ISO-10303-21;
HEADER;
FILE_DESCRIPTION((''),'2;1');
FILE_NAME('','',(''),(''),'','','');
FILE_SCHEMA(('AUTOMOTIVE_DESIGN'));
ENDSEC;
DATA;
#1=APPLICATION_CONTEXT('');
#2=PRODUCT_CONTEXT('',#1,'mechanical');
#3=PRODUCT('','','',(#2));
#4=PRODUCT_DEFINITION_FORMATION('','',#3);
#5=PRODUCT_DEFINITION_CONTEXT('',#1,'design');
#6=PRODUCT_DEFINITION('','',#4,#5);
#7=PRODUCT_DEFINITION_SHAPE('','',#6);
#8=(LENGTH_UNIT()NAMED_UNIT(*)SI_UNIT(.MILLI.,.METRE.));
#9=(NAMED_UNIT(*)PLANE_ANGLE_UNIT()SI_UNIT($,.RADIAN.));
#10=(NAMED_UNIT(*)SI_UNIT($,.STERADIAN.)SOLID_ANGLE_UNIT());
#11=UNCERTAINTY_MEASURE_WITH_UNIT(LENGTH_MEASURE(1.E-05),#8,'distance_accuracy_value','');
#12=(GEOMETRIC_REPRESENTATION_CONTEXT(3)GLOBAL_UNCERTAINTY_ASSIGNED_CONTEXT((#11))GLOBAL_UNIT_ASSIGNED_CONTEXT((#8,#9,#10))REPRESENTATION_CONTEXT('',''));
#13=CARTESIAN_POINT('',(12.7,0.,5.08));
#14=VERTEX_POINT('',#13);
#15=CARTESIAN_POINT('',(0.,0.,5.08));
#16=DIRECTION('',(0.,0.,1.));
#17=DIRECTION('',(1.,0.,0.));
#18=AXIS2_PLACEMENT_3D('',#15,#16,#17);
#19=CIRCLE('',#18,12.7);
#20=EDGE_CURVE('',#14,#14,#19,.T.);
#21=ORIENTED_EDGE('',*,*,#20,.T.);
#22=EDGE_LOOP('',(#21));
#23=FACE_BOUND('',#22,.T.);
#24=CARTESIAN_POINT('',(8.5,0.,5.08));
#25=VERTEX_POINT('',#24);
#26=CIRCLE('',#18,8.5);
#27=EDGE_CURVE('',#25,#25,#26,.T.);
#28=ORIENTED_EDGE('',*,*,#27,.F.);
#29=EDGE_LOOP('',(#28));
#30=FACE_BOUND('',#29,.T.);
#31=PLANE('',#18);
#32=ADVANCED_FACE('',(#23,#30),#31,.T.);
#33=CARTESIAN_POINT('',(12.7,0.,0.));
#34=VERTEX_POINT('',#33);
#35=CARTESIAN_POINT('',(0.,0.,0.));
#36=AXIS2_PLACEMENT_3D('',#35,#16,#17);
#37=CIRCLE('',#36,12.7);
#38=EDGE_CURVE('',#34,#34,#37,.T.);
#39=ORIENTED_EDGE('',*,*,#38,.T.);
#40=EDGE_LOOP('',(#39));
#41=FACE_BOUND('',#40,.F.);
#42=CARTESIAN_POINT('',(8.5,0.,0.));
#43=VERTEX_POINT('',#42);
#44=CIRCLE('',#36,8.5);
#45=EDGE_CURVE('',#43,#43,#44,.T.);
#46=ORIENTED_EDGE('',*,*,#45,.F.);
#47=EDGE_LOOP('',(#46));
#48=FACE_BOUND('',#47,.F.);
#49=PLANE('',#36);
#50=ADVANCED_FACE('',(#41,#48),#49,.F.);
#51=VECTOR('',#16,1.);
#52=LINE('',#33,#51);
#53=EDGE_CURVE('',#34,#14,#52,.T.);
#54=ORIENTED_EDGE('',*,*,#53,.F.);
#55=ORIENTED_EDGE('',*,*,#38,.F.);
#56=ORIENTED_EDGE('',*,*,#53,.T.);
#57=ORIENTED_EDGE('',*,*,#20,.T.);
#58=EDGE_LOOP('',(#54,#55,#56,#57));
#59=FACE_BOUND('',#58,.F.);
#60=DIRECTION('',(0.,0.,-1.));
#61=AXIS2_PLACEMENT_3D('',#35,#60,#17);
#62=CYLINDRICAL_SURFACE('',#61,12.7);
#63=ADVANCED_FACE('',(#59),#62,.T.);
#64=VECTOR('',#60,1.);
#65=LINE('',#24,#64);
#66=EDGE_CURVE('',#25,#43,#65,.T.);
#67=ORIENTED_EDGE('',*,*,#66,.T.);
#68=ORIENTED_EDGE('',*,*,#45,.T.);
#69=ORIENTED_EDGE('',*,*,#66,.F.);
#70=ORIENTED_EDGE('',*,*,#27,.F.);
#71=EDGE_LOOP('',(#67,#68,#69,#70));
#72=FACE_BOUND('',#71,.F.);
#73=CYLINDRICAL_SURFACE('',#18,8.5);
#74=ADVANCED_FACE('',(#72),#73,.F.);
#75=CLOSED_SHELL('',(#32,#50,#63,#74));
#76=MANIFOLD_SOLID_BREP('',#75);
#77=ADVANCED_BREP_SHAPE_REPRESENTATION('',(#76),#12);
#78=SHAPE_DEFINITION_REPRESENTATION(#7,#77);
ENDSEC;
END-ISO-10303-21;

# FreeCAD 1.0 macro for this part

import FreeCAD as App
import Part
import Sketcher

V = App.Vector
Q = App.Units.Quantity

doc = App.newDocument("Part")
params = doc.addObject("Spreadsheet::Sheet", "Params")
for row, (alias, value) in enumerate([
    ("sketch1_diameter", "1 in"),
    ("pad1_length", "0.2 in"),
], start=1):
    params.set(f"A{row}", alias)
    params.set(f"B{row}", "=" + value)
    params.setAlias(f"B{row}", alias)

body = doc.addObject("PartDesign::Body", "Body")

# Sketch on XY plane
sketch1 = body.newObject("Sketcher::SketchObject", "Sketch")
sketch1.AttachmentSupport = (doc.getObject("XY_Plane"), [""])
sketch1.MapMode = "FlatFace"
sketch1.addGeometry(Part.Circle(V(0, 0, 0), V(0, 0, 1), 13), False)
sketch1.addConstraint([
    Sketcher.Constraint("Coincident", 0, 3, -1, 1),
    Sketcher.Constraint("Diameter", 0, Q("1 in")),
])
sketch1.setExpression("Constraints[1]", "Params.sketch1_diameter")
pad1 = body.newObject("PartDesign::Pad", "Pad")
pad1.Profile = sketch1
pad1.setExpression("Length", "Params.pad1_length")

# Sketch on XY plane
sketch2 = body.newObject("Sketcher::SketchObject", "Sketch001")
sketch2.AttachmentSupport = (doc.getObject("XY_Plane"), [""])
sketch2.MapMode = "FlatFace"
sketch2.AttachmentOffset = App.Placement(V(0, 0, 0.2 * 25.4), App.Rotation())
sketch2.addGeometry(Part.Circle(V(0, 0, 0), V(0, 0, 1), 8), False)
sketch2.addConstraint([
    Sketcher.Constraint("Coincident", 0, 3, -1, 1),
    Sketcher.Constraint("Diameter", 0, 17.0),
])
pocket1 = body.newObject("PartDesign::Pocket", "Pocket")
pocket1.Profile = sketch2
pocket1.Type = "ThroughAll"

doc.recompute()
